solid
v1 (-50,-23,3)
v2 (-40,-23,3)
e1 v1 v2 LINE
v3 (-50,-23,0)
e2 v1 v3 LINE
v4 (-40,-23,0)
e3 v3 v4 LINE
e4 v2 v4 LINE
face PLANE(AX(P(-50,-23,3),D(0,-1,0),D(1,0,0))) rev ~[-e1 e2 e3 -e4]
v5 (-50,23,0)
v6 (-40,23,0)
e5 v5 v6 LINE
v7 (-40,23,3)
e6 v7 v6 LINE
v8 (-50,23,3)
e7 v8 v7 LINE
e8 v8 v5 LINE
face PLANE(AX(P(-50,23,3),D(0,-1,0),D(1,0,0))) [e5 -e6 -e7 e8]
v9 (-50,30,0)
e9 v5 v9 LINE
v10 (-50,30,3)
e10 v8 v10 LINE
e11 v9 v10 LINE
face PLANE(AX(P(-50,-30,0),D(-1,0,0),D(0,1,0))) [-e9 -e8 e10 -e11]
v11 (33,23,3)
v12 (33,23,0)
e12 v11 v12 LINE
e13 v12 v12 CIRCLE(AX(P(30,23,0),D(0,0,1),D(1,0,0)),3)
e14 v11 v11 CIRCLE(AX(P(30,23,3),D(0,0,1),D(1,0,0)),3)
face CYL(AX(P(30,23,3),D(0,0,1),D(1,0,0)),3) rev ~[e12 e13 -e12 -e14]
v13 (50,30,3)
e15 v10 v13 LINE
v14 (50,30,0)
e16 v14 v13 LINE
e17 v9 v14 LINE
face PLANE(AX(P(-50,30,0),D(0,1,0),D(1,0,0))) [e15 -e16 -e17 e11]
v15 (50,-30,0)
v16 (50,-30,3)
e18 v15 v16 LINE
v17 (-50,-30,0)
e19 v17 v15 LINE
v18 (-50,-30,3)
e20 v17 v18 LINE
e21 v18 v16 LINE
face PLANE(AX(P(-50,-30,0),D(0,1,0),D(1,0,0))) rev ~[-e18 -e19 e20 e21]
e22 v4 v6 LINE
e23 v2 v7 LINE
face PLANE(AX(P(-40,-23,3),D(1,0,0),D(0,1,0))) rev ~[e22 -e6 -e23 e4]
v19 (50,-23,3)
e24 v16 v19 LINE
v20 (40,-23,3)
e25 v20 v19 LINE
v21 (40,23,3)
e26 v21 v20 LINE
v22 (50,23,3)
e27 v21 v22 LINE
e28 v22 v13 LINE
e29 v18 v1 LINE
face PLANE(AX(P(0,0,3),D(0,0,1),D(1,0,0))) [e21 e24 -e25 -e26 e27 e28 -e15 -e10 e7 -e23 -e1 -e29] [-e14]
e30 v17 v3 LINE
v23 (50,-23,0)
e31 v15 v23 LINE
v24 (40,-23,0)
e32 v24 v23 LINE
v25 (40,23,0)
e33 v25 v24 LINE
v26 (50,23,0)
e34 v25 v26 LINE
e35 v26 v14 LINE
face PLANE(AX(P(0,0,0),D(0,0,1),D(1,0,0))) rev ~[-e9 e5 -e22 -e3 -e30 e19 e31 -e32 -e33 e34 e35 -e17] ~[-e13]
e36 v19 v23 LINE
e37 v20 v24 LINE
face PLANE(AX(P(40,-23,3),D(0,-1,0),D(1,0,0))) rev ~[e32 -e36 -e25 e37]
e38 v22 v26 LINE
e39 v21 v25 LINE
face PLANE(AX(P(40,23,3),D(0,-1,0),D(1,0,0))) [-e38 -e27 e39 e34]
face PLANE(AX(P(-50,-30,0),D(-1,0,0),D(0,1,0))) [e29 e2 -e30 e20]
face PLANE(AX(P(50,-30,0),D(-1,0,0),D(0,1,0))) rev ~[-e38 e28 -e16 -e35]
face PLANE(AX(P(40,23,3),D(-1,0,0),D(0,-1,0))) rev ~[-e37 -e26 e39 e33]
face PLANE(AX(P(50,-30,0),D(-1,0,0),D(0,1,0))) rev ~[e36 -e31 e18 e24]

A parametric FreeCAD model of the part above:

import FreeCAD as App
import Part
import Sketcher

V = App.Vector

doc = App.newDocument("Part")
body = doc.addObject("PartDesign::Body", "Body")

# Sketch on XY plane
sketch1 = body.newObject("Sketcher::SketchObject", "Sketch")
sketch1.AttachmentSupport = (doc.getObject("XY_Plane"), [""])
sketch1.MapMode = "FlatFace"
sketch1.addGeometry([
    Part.LineSegment(V(-50, 30, 0), V(-50, -30, 0)),
    Part.LineSegment(V(-50, -30, 0), V(50, -30, 0)),
    Part.LineSegment(V(50, -30, 0), V(50, 30, 0)),
    Part.LineSegment(V(50, 30, 0), V(-50, 30, 0)),
], False)
sketch1.addConstraint([
    Sketcher.Constraint("Coincident", 0, 2, 1, 1),
    Sketcher.Constraint("Coincident", 1, 2, 2, 1),
    Sketcher.Constraint("Coincident", 2, 2, 3, 1),
    Sketcher.Constraint("Coincident", 3, 2, 0, 1),
    Sketcher.Constraint("Vertical", 0),
    Sketcher.Constraint("Horizontal", 1),
    Sketcher.Constraint("Vertical", 2),
    Sketcher.Constraint("Horizontal", 3),
    Sketcher.Constraint("Symmetric", 0, 2, 2, 2, -1, 1),
    Sketcher.Constraint("DistanceX", 1, 1, 1, 2, 100.0),
    Sketcher.Constraint("DistanceY", 0, 2, 0, 1, 60.0),
])
pad1 = body.newObject("PartDesign::Pad", "Pad")
pad1.Profile = sketch1
pad1.Length = 3

# Sketch on XY plane
sketch2 = body.newObject("Sketcher::SketchObject", "Sketch001")
sketch2.AttachmentSupport = (doc.getObject("XY_Plane"), [""])
sketch2.MapMode = "FlatFace"
sketch2.AttachmentOffset = App.Placement(V(0, 0, 3), App.Rotation())
sketch2.addGeometry([
    Part.LineSegment(V(-50, 23, 0), V(-50, -23, 0)),  # 0
    Part.LineSegment(V(-50, -23, 0), V(-40, -23, 0)),  # 1
    Part.LineSegment(V(-40, -23, 0), V(-40, 23, 0)),  # 2
    Part.LineSegment(V(-40, 23, 0), V(-50, 23, 0)),  # 3
    Part.LineSegment(V(40, 23, 0), V(40, -23, 0)),  # 4
    Part.LineSegment(V(40, -23, 0), V(50, -23, 0)),  # 5
    Part.LineSegment(V(50, -23, 0), V(50, 23, 0)),  # 6
    Part.LineSegment(V(50, 23, 0), V(40, 23, 0)),  # 7
], False)
sketch2.addConstraint([
    Sketcher.Constraint("Coincident", 0, 2, 1, 1),
    Sketcher.Constraint("Coincident", 1, 2, 2, 1),
    Sketcher.Constraint("Coincident", 2, 2, 3, 1),
    Sketcher.Constraint("Coincident", 3, 2, 0, 1),
    Sketcher.Constraint("Coincident", 4, 2, 5, 1),
    Sketcher.Constraint("Coincident", 5, 2, 6, 1),
    Sketcher.Constraint("Coincident", 6, 2, 7, 1),
    Sketcher.Constraint("Coincident", 7, 2, 4, 1),
    Sketcher.Constraint("Vertical", 0),
    Sketcher.Constraint("Horizontal", 1),
    Sketcher.Constraint("Vertical", 2),
    Sketcher.Constraint("Horizontal", 3),
    Sketcher.Constraint("Vertical", 4),
    Sketcher.Constraint("Horizontal", 5),
    Sketcher.Constraint("Vertical", 6),
    Sketcher.Constraint("Horizontal", 7),
    Sketcher.Constraint("Symmetric", 2, 2, 4, 2, -1, 1),
    Sketcher.Constraint("Symmetric", 0, 2, 6, 2, -1, 1),
    Sketcher.Constraint("Horizontal", 1, 2, 4, 2),
    Sketcher.Constraint("DistanceX", 1, 1, 1, 2, 10.0),
    Sketcher.Constraint("DistanceY", 0, 2, 0, 1, 46.0),
    Sketcher.Constraint("DistanceX", 0, 2, -1, 1, 50.0),
])
pocket1 = body.newObject("PartDesign::Pocket", "Pocket")
pocket1.Profile = sketch2
pocket1.Type = "ThroughAll"

# Sketch on XY plane
sketch3 = body.newObject("Sketcher::SketchObject", "Sketch002")
sketch3.AttachmentSupport = (doc.getObject("XY_Plane"), [""])
sketch3.MapMode = "FlatFace"
sketch3.AttachmentOffset = App.Placement(V(0, 0, 3), App.Rotation())
sketch3.addGeometry(Part.Circle(V(30, 23, 0), V(0, 0, 1), 3), False)
sketch3.addConstraint([
    Sketcher.Constraint("Diameter", 0, 6.0),
    Sketcher.Constraint("DistanceX", -1, 1, 0, 3, 30.0),
    Sketcher.Constraint("DistanceY", -1, 1, 0, 3, 23.0),
])
pocket2 = body.newObject("PartDesign::Pocket", "Pocket001")
pocket2.Profile = sketch3
pocket2.Type = "ThroughAll"

doc.recompute()
